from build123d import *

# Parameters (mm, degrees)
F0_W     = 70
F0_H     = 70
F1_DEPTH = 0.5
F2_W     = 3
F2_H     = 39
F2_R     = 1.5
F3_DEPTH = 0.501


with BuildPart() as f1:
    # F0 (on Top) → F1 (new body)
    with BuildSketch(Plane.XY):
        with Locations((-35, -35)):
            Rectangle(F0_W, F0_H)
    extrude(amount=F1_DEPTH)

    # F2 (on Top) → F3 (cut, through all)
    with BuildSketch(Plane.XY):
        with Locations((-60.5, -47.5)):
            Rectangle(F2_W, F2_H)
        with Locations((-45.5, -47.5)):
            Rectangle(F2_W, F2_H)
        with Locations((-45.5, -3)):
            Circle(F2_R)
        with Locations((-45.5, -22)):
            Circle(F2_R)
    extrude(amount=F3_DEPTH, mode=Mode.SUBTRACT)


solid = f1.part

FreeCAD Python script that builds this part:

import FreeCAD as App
import Part
import Sketcher


def add_polygon(sketch, points):
    """Adds a closed chain of lines whose ends are joined by coincident constraints."""
    first, n = sketch.GeometryCount, len(points)
    for a, b in zip(points, points[1:] + points[:1]):
        sketch.addGeometry(Part.LineSegment(App.Vector(*a, 0), App.Vector(*b, 0)), False)
    for i in range(n):
        sketch.addConstraint(Sketcher.Constraint("Coincident", first + i, 2, first + (i + 1) % n, 1))

doc = App.newDocument("Part")
body = doc.addObject("PartDesign::Body", "Body")

# Sketch on XY plane
sketch1 = body.newObject("Sketcher::SketchObject", "Sketch")
sketch1.AttachmentSupport = (doc.getObject("XY_Plane"), [""])
sketch1.MapMode = "FlatFace"
add_polygon(sketch1, [(-70, 0), (-70, -70), (0, -70), (0, 0)])  # lines 0-3
sketch1.addConstraint(Sketcher.Constraint("Vertical", 0))
sketch1.addConstraint(Sketcher.Constraint("Horizontal", 1))
sketch1.addConstraint(Sketcher.Constraint("Vertical", 2))
sketch1.addConstraint(Sketcher.Constraint("Horizontal", 3))
sketch1.addConstraint(Sketcher.Constraint("Coincident", 2, 2, -1, 1))
sketch1.addConstraint(Sketcher.Constraint("Equal", 3, 0))
sketch1.addConstraint(Sketcher.Constraint("DistanceX", 1, 1, 1, 2, 70.0))
pad1 = body.newObject("PartDesign::Pad", "Pad")
pad1.Profile = sketch1
pad1.Length = 0.5

# Sketch on XY plane
sketch2 = body.newObject("Sketcher::SketchObject", "Sketch001")
sketch2.AttachmentSupport = (doc.getObject("XY_Plane"), [""])
sketch2.MapMode = "FlatFace"
add_polygon(sketch2, [(-62, -28), (-62, -67), (-59, -67), (-59, -28)])  # lines 0-3
add_polygon(sketch2, [(-47, -28), (-47, -67), (-44, -67), (-44, -28)])  # lines 4-7
sketch2.addGeometry(Part.Circle(App.Vector(-45.5, -3, 0), App.Vector(0, 0, 1), 1.5), False)  # 8
sketch2.addGeometry(Part.Circle(App.Vector(-45.5, -22, 0), App.Vector(0, 0, 1), 1.5), False)  # 9
sketch2.addConstraint(Sketcher.Constraint("Vertical", 0))
sketch2.addConstraint(Sketcher.Constraint("Horizontal", 1))
sketch2.addConstraint(Sketcher.Constraint("Vertical", 2))
sketch2.addConstraint(Sketcher.Constraint("Horizontal", 3))
sketch2.addConstraint(Sketcher.Constraint("Vertical", 4))
sketch2.addConstraint(Sketcher.Constraint("Horizontal", 5))
sketch2.addConstraint(Sketcher.Constraint("Vertical", 6))
sketch2.addConstraint(Sketcher.Constraint("Horizontal", 7))
sketch2.addConstraint(Sketcher.Constraint("Equal", 8, 9))
sketch2.addConstraint(Sketcher.Constraint("Horizontal", 1, 2, 4, 2))
sketch2.addConstraint(Sketcher.Constraint("Horizontal", 3, 2, 6, 2))
sketch2.addConstraint(Sketcher.Constraint("Vertical", 8, 3, 9, 3))
sketch2.addConstraint(Sketcher.Constraint("Equal", 3, 5))
sketch2.addConstraint(Sketcher.Constraint("Diameter", 8, 3.0))
sketch2.addConstraint(Sketcher.Constraint("DistanceX", 1, 1, 1, 2, 3.0))
sketch2.addConstraint(Sketcher.Constraint("DistanceY", 0, 2, 0, 1, 39.0))
sketch2.addConstraint(Sketcher.Constraint("DistanceY", 8, 3, -1, 1, 3.0))
sketch2.addConstraint(Sketcher.Constraint("DistanceY", 9, 3, -1, 1, 22.0))
sketch2.addConstraint(Sketcher.Constraint("DistanceX", 0, 2, -1, 1, 62.0))
sketch2.addConstraint(Sketcher.Constraint("DistanceY", 0, 2, -1, 1, 67.0))
sketch2.addConstraint(Sketcher.Constraint("DistanceX", 4, 2, -1, 1, 47.0))
sketch2.addConstraint(Sketcher.Constraint("DistanceX", 8, 3, -1, 1, 45.5))
pocket1 = body.newObject("PartDesign::Pocket", "Pocket")
pocket1.Profile = sketch2
pocket1.Type = "ThroughAll"
pocket1.Reversed = True

doc.recompute()
